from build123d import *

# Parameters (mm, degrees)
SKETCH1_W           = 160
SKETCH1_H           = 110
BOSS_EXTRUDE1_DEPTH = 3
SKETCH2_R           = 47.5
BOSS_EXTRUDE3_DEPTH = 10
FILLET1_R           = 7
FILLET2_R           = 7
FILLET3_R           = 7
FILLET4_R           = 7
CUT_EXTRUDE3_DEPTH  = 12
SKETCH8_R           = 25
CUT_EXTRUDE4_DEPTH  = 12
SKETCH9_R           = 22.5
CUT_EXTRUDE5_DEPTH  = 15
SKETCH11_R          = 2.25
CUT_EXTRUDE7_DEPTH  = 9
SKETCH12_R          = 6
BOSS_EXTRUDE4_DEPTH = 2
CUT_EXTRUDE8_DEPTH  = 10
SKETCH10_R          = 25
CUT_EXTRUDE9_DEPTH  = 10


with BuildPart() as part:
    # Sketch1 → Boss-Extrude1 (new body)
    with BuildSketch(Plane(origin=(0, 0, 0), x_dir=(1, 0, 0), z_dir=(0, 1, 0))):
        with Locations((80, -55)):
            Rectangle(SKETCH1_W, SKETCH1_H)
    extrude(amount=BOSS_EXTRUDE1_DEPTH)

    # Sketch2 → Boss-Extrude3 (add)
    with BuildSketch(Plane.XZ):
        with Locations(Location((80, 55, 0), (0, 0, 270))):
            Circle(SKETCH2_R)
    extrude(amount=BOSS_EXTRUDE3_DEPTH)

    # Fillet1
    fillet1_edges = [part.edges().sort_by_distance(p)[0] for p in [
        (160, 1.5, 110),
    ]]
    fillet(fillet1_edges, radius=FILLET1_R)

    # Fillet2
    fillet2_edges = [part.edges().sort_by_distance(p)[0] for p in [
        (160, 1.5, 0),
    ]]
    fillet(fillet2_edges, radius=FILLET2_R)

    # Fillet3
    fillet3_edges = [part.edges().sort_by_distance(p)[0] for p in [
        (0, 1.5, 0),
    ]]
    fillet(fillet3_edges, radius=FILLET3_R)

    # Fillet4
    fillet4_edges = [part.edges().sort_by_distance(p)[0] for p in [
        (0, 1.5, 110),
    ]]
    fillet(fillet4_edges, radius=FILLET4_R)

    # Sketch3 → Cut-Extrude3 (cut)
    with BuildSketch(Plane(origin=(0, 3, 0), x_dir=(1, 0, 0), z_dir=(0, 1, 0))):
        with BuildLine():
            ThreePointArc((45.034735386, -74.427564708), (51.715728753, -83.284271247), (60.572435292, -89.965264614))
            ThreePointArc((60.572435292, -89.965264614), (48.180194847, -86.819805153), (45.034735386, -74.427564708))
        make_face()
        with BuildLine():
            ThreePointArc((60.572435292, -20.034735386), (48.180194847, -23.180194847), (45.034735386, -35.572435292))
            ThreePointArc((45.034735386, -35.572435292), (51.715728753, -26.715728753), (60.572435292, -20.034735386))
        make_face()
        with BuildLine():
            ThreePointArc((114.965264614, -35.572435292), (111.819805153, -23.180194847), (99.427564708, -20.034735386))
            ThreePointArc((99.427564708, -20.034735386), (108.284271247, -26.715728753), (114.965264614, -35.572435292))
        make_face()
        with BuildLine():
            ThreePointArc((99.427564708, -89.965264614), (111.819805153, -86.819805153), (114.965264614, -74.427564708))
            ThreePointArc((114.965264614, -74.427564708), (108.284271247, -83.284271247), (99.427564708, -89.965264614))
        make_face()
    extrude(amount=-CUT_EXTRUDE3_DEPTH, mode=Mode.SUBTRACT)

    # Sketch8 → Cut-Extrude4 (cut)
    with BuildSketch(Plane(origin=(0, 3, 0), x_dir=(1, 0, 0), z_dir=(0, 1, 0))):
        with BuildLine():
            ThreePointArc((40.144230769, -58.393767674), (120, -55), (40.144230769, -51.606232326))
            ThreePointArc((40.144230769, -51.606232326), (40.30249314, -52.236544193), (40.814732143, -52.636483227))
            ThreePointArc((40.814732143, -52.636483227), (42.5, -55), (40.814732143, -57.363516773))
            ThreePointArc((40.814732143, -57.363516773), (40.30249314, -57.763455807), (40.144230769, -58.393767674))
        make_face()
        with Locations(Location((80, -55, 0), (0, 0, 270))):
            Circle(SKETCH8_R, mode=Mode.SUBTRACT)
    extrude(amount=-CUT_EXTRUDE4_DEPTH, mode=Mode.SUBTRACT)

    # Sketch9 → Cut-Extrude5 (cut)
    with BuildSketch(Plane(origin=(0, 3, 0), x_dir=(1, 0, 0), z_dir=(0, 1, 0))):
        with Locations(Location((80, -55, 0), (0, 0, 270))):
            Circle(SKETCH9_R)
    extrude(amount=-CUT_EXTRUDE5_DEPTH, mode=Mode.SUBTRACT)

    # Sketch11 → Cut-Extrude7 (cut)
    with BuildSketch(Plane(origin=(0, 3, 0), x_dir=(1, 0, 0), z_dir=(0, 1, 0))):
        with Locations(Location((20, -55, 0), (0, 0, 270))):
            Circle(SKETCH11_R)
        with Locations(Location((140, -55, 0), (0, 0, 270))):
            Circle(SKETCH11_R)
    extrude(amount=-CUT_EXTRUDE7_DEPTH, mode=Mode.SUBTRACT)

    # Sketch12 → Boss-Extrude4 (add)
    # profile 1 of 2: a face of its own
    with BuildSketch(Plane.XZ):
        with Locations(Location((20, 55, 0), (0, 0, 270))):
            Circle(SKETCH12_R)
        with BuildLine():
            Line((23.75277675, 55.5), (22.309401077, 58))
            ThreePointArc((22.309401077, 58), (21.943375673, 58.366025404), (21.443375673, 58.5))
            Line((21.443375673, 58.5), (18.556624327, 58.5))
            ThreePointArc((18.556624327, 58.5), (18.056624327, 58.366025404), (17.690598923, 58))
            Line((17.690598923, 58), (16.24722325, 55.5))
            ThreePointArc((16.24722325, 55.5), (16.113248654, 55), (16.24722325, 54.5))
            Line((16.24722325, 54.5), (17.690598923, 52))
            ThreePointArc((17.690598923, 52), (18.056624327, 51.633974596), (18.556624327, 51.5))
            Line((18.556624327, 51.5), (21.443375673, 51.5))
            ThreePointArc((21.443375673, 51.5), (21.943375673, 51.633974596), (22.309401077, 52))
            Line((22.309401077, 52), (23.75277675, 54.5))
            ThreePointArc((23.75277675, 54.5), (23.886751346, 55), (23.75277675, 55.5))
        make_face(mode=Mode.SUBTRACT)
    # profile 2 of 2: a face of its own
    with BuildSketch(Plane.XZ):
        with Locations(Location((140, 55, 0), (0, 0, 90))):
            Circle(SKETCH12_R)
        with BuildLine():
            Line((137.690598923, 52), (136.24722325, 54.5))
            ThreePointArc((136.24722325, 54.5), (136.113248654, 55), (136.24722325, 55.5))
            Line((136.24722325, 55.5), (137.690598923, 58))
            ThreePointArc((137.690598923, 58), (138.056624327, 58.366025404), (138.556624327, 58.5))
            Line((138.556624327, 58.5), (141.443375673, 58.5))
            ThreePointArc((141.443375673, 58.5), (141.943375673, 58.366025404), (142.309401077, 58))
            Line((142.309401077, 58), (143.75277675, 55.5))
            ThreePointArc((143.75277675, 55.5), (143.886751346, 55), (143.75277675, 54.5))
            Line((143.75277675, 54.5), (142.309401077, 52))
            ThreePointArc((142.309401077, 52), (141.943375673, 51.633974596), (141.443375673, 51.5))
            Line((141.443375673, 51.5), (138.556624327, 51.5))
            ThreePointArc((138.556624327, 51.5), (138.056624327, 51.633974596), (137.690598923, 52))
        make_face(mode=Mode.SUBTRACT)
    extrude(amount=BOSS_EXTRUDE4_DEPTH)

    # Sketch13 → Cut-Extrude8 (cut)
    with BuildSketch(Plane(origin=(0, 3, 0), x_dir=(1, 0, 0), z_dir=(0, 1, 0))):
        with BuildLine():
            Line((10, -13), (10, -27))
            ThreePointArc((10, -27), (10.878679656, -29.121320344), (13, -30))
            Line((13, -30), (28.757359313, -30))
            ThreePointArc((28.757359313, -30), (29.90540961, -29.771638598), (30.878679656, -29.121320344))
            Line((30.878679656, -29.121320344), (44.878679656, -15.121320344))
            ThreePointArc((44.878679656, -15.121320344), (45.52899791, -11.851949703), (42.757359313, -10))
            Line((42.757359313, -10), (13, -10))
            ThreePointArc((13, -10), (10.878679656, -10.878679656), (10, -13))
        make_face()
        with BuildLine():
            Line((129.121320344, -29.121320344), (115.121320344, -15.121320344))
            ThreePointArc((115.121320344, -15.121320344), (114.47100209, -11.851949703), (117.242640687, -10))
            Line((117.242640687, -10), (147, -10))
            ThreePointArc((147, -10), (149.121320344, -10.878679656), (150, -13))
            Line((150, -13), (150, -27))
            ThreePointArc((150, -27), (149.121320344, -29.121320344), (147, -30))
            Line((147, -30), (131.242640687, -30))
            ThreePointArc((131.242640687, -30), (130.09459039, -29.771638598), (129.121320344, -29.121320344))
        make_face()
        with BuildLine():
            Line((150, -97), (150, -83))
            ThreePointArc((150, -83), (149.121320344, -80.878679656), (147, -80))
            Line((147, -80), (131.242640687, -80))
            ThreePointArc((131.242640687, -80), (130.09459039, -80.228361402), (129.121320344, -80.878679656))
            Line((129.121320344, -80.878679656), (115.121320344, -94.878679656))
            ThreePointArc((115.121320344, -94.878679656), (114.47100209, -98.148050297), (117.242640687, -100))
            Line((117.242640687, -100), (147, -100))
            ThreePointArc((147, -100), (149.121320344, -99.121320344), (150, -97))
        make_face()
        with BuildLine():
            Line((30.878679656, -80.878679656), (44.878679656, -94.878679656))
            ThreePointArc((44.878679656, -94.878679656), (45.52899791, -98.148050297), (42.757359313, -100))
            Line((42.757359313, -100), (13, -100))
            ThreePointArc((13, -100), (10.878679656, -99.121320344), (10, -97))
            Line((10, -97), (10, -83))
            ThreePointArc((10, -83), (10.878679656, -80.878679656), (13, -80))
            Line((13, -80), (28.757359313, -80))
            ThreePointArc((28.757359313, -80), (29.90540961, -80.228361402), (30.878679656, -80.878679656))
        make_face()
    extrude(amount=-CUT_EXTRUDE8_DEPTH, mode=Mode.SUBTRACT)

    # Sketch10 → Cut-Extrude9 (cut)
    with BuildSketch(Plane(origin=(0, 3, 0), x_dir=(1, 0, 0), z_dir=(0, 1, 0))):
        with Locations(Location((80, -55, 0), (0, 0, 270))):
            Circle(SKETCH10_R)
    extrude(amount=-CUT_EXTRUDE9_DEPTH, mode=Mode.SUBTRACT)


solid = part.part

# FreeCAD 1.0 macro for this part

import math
import FreeCAD as App
import Part
import Sketcher

V = App.Vector
Q = App.Units.Quantity


def edges_at(feature, points):
    """Names of the edges that pass closest to the given points."""
    edges = feature.Shape.Edges
    near = lambda p: min(range(len(edges)), key=lambda i: edges[i].distToShape(Part.Vertex(*p))[0])
    return sorted({f"Edge{near(p) + 1}" for p in points})


def add_polygon(sketch, points):
    """Adds a closed chain of lines whose ends are joined by coincident constraints."""
    first, n = sketch.GeometryCount, len(points)
    for a, b in zip(points, points[1:] + points[:1]):
        sketch.addGeometry(Part.LineSegment(App.Vector(*a, 0), App.Vector(*b, 0)), False)
    for i in range(n):
        sketch.addConstraint(Sketcher.Constraint("Coincident", first + i, 2, first + (i + 1) % n, 1))

doc = App.newDocument("Part")
params = doc.addObject("Spreadsheet::Sheet", "Params")
for row, (alias, value) in enumerate([
    ("sketch1_width", "160 mm"),
    ("sketch1_height", "110 mm"),
    ("pad1_length", "3 mm"),
    ("sketch2_diameter", "95 mm"),
    ("pad2_length", "10 mm"),
    ("fillet_radius", "7 mm"),
    ("fillet2_radius", "7 mm"),
    ("fillet3_radius", "7 mm"),
    ("fillet4_radius", "7 mm"),
    ("sketch3_radius", "40 mm"),
    ("sketch3_radius2", "12.5 mm"),
    ("pocket1_length", "12 mm"),
    ("sketch4_diameter", "50 mm"),
    ("sketch4_radius", "40 mm"),
    ("sketch4_radius2", "1 mm"),
    ("sketch4_radius3", "2.5 mm"),
    ("pocket2_length", "12 mm"),
    ("sketch5_diameter", "45 mm"),
    ("pocket3_length", "15 mm"),
    ("sketch6_diameter", "4.5 mm"),
    ("pocket4_length", "9 mm"),
    ("sketch7_diameter", "12 mm"),
    ("sketch7_radius", "1 mm"),
    ("pad3_length", "2 mm"),
    ("sketch8_radius", "3 mm"),
    ("sketch8_height", "14 mm"),
    ("pocket5_length", "10 mm"),
    ("sketch9_diameter", "50 mm"),
    ("pocket6_length", "10 mm"),
], start=1):
    params.set(f"A{row}", alias)
    params.set(f"B{row}", "=" + value)
    params.setAlias(f"B{row}", alias)

body = doc.addObject("PartDesign::Body", "Body")

# Sketch on XZ plane
sketch1 = body.newObject("Sketcher::SketchObject", "Sketch")
sketch1.AttachmentSupport = (doc.getObject("XZ_Plane"), [""])
sketch1.MapMode = "FlatFace"
add_polygon(sketch1, [(0, 0), (0, 110), (160, 110), (160, 0)])  # lines 0-3
sketch1.addConstraint(Sketcher.Constraint("Vertical", 0))
sketch1.addConstraint(Sketcher.Constraint("Horizontal", 1))
sketch1.addConstraint(Sketcher.Constraint("Vertical", 2))
sketch1.addConstraint(Sketcher.Constraint("Horizontal", 3))
sketch1.addConstraint(Sketcher.Constraint("Coincident", 3, 2, -1, 1))
sketch1.addConstraint(Sketcher.Constraint("DistanceX", 1, 1, 1, 2, Q("160 mm")))
sketch1.addConstraint(Sketcher.Constraint("DistanceY", 0, 1, 0, 2, Q("110 mm")))
sketch1.setExpression("Constraints[9]", "Params.sketch1_width")
sketch1.setExpression("Constraints[10]", "Params.sketch1_height")
pad1 = body.newObject("PartDesign::Pad", "Pad")
pad1.Profile = sketch1
pad1.setExpression("Length", "Params.pad1_length")
pad1.Reversed = True

# Sketch on XZ plane
sketch2 = body.newObject("Sketcher::SketchObject", "Sketch001")
sketch2.AttachmentSupport = (doc.getObject("XZ_Plane"), [""])
sketch2.MapMode = "FlatFace"
sketch2.addGeometry(Part.Circle(V(80, 55, 0), V(0, 0, 1), 47.5), False)
sketch2.addConstraint(Sketcher.Constraint("Diameter", 0, Q("95 mm")))
sketch2.addConstraint(Sketcher.Constraint("DistanceX", -1, 1, 0, 3, Q("80 mm")))
sketch2.addConstraint(Sketcher.Constraint("DistanceY", -1, 1, 0, 3, Q("55 mm")))
sketch2.setExpression("Constraints[0]", "Params.sketch2_diameter")
pad2 = body.newObject("PartDesign::Pad", "Pad001")
pad2.Profile = sketch2
pad2.setExpression("Length", "Params.pad2_length")
doc.recompute()

fillet = body.newObject("PartDesign::Fillet", "Fillet")
fillet.Base = (pad2, edges_at(pad2, [(160, 1.5, 110)]))
fillet.setExpression("Radius", "Params.fillet_radius")
doc.recompute()

fillet2 = body.newObject("PartDesign::Fillet", "Fillet001")
fillet2.Base = (fillet, edges_at(fillet, [(160, 1.5, 0)]))
fillet2.setExpression("Radius", "Params.fillet2_radius")
doc.recompute()

fillet3 = body.newObject("PartDesign::Fillet", "Fillet002")
fillet3.Base = (fillet2, edges_at(fillet2, [(0, 1.5, 0)]))
fillet3.setExpression("Radius", "Params.fillet3_radius")
doc.recompute()

fillet4 = body.newObject("PartDesign::Fillet", "Fillet003")
fillet4.Base = (fillet3, edges_at(fillet3, [(0, 1.5, 110)]))
fillet4.setExpression("Radius", "Params.fillet4_radius")

# Sketch on XZ plane
sketch3 = body.newObject("Sketcher::SketchObject", "Sketch002")
sketch3.AttachmentSupport = (doc.getObject("XZ_Plane"), [""])
sketch3.MapMode = "FlatFace"
sketch3.AttachmentOffset = App.Placement(V(0, 0, -3), App.Rotation())
sketch3.addGeometry(Part.ArcOfCircle(Part.Circle(V(80, 55, 0), V(0, 0, 1), 40), math.radians(119.057631), math.radians(150.942369)), False)
sketch3.addGeometry(Part.ArcOfCircle(Part.Circle(V(57.01903, 77.98097, 0), V(0, 0, 1), 12.5), math.radians(73.484635), math.radians(196.515365)), False)
sketch3.addGeometry(Part.ArcOfCircle(Part.Circle(V(57.01903, 32.01903, 0), V(0, 0, 1), 12.5), math.radians(163.484635), math.radians(286.515365)), False)
sketch3.addGeometry(Part.ArcOfCircle(Part.Circle(V(80, 55, 0), V(0, 0, 1), 40), math.radians(-150.942369), math.radians(-119.057631)), False)
sketch3.addGeometry(Part.ArcOfCircle(Part.Circle(V(102.98097, 32.01903, 0), V(0, 0, 1), 12.5), math.radians(-106.515365), math.radians(16.515365)), False)
sketch3.addGeometry(Part.ArcOfCircle(Part.Circle(V(80, 55, 0), V(0, 0, 1), 40), math.radians(-60.942369), math.radians(-29.057631)), False)
sketch3.addGeometry(Part.ArcOfCircle(Part.Circle(V(102.98097, 77.98097, 0), V(0, 0, 1), 12.5), math.radians(-16.515365), math.radians(106.515365)), False)
sketch3.addGeometry(Part.ArcOfCircle(Part.Circle(V(80, 55, 0), V(0, 0, 1), 40), math.radians(29.057631), math.radians(60.942369)), False)
sketch3.addConstraint(Sketcher.Constraint("Coincident", 0, 1, 1, 1))
sketch3.addConstraint(Sketcher.Constraint("Coincident", 1, 2, 0, 2))
sketch3.addConstraint(Sketcher.Constraint("Coincident", 2, 1, 3, 1))
sketch3.addConstraint(Sketcher.Constraint("Coincident", 3, 2, 2, 2))
sketch3.addConstraint(Sketcher.Constraint("Coincident", 4, 1, 5, 1))
sketch3.addConstraint(Sketcher.Constraint("Coincident", 5, 2, 4, 2))
sketch3.addConstraint(Sketcher.Constraint("Coincident", 6, 1, 7, 1))
sketch3.addConstraint(Sketcher.Constraint("Coincident", 7, 2, 6, 2))
sketch3.addConstraint(Sketcher.Constraint("Coincident", 3, 3, 0, 3))
sketch3.addConstraint(Sketcher.Constraint("Coincident", 5, 3, 0, 3))
sketch3.addConstraint(Sketcher.Constraint("Coincident", 7, 3, 0, 3))
sketch3.addConstraint(Sketcher.Constraint("Equal", 1, 2))
sketch3.addConstraint(Sketcher.Constraint("Equal", 0, 3))
sketch3.addConstraint(Sketcher.Constraint("Equal", 2, 4))
sketch3.addConstraint(Sketcher.Constraint("Equal", 3, 5))
sketch3.addConstraint(Sketcher.Constraint("Equal", 4, 6))
sketch3.addConstraint(Sketcher.Constraint("Equal", 5, 7))
sketch3.addConstraint(Sketcher.Constraint("Horizontal", 2, 3, 4, 3))
sketch3.addConstraint(Sketcher.Constraint("Horizontal", 1, 3, 6, 3))
sketch3.addConstraint(Sketcher.Constraint("Horizontal", 3, 2, 4, 1))
sketch3.addConstraint(Sketcher.Constraint("Horizontal", 1, 2, 6, 1))
sketch3.addConstraint(Sketcher.Constraint("Vertical", 1, 3, 2, 3))
sketch3.addConstraint(Sketcher.Constraint("Vertical", 1, 2, 2, 1))
sketch3.addConstraint(Sketcher.Constraint("Radius", 0, Q("40 mm")))
sketch3.addConstraint(Sketcher.Constraint("Radius", 1, Q("12.5 mm")))
sketch3.addConstraint(Sketcher.Constraint("DistanceX", -1, 1, 0, 3, Q("80 mm")))
sketch3.addConstraint(Sketcher.Constraint("DistanceY", -1, 1, 0, 3, Q("55 mm")))
sketch3.addConstraint(Sketcher.Constraint("DistanceX", 1, 2, 0, 1, Q("15.5377 mm")))
sketch3.addConstraint(Sketcher.Constraint("DistanceY", 1, 2, 0, 1, Q("15.5377 mm")))
sketch3.setExpression("Constraints[23]", "Params.sketch3_radius")
sketch3.setExpression("Constraints[24]", "Params.sketch3_radius2")
pocket1 = body.newObject("PartDesign::Pocket", "Pocket")
pocket1.Profile = sketch3
pocket1.setExpression("Length", "Params.pocket1_length")
pocket1.Reversed = True

# Sketch on XZ plane
sketch4 = body.newObject("Sketcher::SketchObject", "Sketch003")
sketch4.AttachmentSupport = (doc.getObject("XZ_Plane"), [""])
sketch4.MapMode = "FlatFace"
sketch4.AttachmentOffset = App.Placement(V(0, 0, -3), App.Rotation())
sketch4.addGeometry(Part.ArcOfCircle(Part.Circle(V(80, 55, 0), V(0, 0, 1), 40), math.radians(-175.132935), math.radians(175.132935)), False)
sketch4.addGeometry(Part.ArcOfCircle(Part.Circle(V(41.140625, 51.691077, 0), V(0, 0, 1), 1), math.radians(109.019677), math.radians(184.867065)), False)
sketch4.addGeometry(Part.ArcOfCircle(Part.Circle(V(40, 55, 0), V(0, 0, 1), 2.5), math.radians(-70.980323), math.radians(70.980323)), False)
sketch4.addGeometry(Part.ArcOfCircle(Part.Circle(V(41.140625, 58.308923, 0), V(0, 0, 1), 1), math.radians(175.132935), math.radians(250.980323)), False)
sketch4.addGeometry(Part.Circle(V(80, 55, 0), V(0, 0, 1), 25), False)
sketch4.addConstraint(Sketcher.Constraint("Tangent", 0, 1, 1, 2))
sketch4.addConstraint(Sketcher.Constraint("Tangent", 1, 1, 2, 1))
sketch4.addConstraint(Sketcher.Constraint("Tangent", 2, 2, 3, 2))
sketch4.addConstraint(Sketcher.Constraint("Tangent", 3, 1, 0, 2))
sketch4.addConstraint(Sketcher.Constraint("Coincident", 4, 3, 0, 3))
sketch4.addConstraint(Sketcher.Constraint("Equal", 1, 3))
sketch4.addConstraint(Sketcher.Constraint("Horizontal", 0, 3, 2, 3))
sketch4.addConstraint(Sketcher.Constraint("Diameter", 4, Q("50 mm")))
sketch4.addConstraint(Sketcher.Constraint("Radius", 0, Q("40 mm")))
sketch4.addConstraint(Sketcher.Constraint("Radius", 1, Q("1 mm")))
sketch4.addConstraint(Sketcher.Constraint("Radius", 2, Q("2.5 mm")))
sketch4.addConstraint(Sketcher.Constraint("DistanceX", -1, 1, 0, 3, Q("80 mm")))
sketch4.addConstraint(Sketcher.Constraint("DistanceY", -1, 1, 0, 3, Q("55 mm")))
sketch4.addConstraint(Sketcher.Constraint("DistanceX", -1, 1, 2, 3, Q("40 mm")))
sketch4.setExpression("Constraints[7]", "Params.sketch4_diameter")
sketch4.setExpression("Constraints[8]", "Params.sketch4_radius")
sketch4.setExpression("Constraints[9]", "Params.sketch4_radius2")
sketch4.setExpression("Constraints[10]", "Params.sketch4_radius3")
pocket2 = body.newObject("PartDesign::Pocket", "Pocket001")
pocket2.Profile = sketch4
pocket2.setExpression("Length", "Params.pocket2_length")
pocket2.Reversed = True

# Sketch on XZ plane
sketch5 = body.newObject("Sketcher::SketchObject", "Sketch004")
sketch5.AttachmentSupport = (doc.getObject("XZ_Plane"), [""])
sketch5.MapMode = "FlatFace"
sketch5.AttachmentOffset = App.Placement(V(0, 0, -3), App.Rotation())
sketch5.addGeometry(Part.Circle(V(80, 55, 0), V(0, 0, 1), 22.5), False)
sketch5.addConstraint(Sketcher.Constraint("Diameter", 0, Q("45 mm")))
sketch5.addConstraint(Sketcher.Constraint("DistanceX", -1, 1, 0, 3, Q("80 mm")))
sketch5.addConstraint(Sketcher.Constraint("DistanceY", -1, 1, 0, 3, Q("55 mm")))
sketch5.setExpression("Constraints[0]", "Params.sketch5_diameter")
pocket3 = body.newObject("PartDesign::Pocket", "Pocket002")
pocket3.Profile = sketch5
pocket3.setExpression("Length", "Params.pocket3_length")
pocket3.Reversed = True

# Sketch on XZ plane
sketch6 = body.newObject("Sketcher::SketchObject", "Sketch005")
sketch6.AttachmentSupport = (doc.getObject("XZ_Plane"), [""])
sketch6.MapMode = "FlatFace"
sketch6.AttachmentOffset = App.Placement(V(0, 0, -3), App.Rotation())
sketch6.addGeometry(Part.Circle(V(20, 55, 0), V(0, 0, 1), 2.25), False)
sketch6.addGeometry(Part.Circle(V(140, 55, 0), V(0, 0, 1), 2.25), False)
sketch6.addConstraint(Sketcher.Constraint("Equal", 0, 1))
sketch6.addConstraint(Sketcher.Constraint("Horizontal", 0, 3, 1, 3))
sketch6.addConstraint(Sketcher.Constraint("Diameter", 0, Q("4.5 mm")))
sketch6.addConstraint(Sketcher.Constraint("DistanceX", -1, 1, 0, 3, Q("20 mm")))
sketch6.addConstraint(Sketcher.Constraint("DistanceY", -1, 1, 0, 3, Q("55 mm")))
sketch6.addConstraint(Sketcher.Constraint("DistanceX", -1, 1, 1, 3, Q("140 mm")))
sketch6.setExpression("Constraints[2]", "Params.sketch6_diameter")
pocket4 = body.newObject("PartDesign::Pocket", "Pocket003")
pocket4.Profile = sketch6
pocket4.setExpression("Length", "Params.pocket4_length")
pocket4.Reversed = True

# Sketch on XZ plane
sketch7 = body.newObject("Sketcher::SketchObject", "Sketch006")
sketch7.AttachmentSupport = (doc.getObject("XZ_Plane"), [""])
sketch7.MapMode = "FlatFace"
sketch7.addGeometry(Part.Circle(V(20, 55, 0), V(0, 0, 1), 6), False)
sketch7.addGeometry(Part.LineSegment(V(22.309401, 58, 0), V(23.752777, 55.5, 0)), False)
sketch7.addGeometry(Part.ArcOfCircle(Part.Circle(V(22.886751, 55, 0), V(0, 0, 1), 1), math.radians(-30), math.radians(30)), False)
sketch7.addGeometry(Part.LineSegment(V(23.752777, 54.5, 0), V(22.309401, 52, 0)), False)
sketch7.addGeometry(Part.ArcOfCircle(Part.Circle(V(21.443376, 52.5, 0), V(0, 0, 1), 1), math.radians(-90), math.radians(-30)), False)
sketch7.addGeometry(Part.LineSegment(V(21.443376, 51.5, 0), V(18.556624, 51.5, 0)), False)
sketch7.addGeometry(Part.ArcOfCircle(Part.Circle(V(18.556624, 52.5, 0), V(0, 0, 1), 1), math.radians(-150), math.radians(-90)), False)
sketch7.addGeometry(Part.LineSegment(V(17.690599, 52, 0), V(16.247223, 54.5, 0)), False)
sketch7.addGeometry(Part.ArcOfCircle(Part.Circle(V(17.113249, 55, 0), V(0, 0, 1), 1), math.radians(150), math.radians(210)), False)
sketch7.addGeometry(Part.LineSegment(V(16.247223, 55.5, 0), V(17.690599, 58, 0)), False)
sketch7.addGeometry(Part.ArcOfCircle(Part.Circle(V(18.556624, 57.5, 0), V(0, 0, 1), 1), math.radians(90), math.radians(150)), False)
sketch7.addGeometry(Part.LineSegment(V(18.556624, 58.5, 0), V(21.443376, 58.5, 0)), False)
sketch7.addGeometry(Part.ArcOfCircle(Part.Circle(V(21.443376, 57.5, 0), V(0, 0, 1), 1), math.radians(30), math.radians(90)), False)
sketch7.addGeometry(Part.Circle(V(140, 55, 0), V(0, 0, 1), 6), False)
sketch7.addGeometry(Part.ArcOfCircle(Part.Circle(V(138.556624, 52.5, 0), V(0, 0, 1), 1), math.radians(-150), math.radians(-90)), False)
sketch7.addGeometry(Part.LineSegment(V(137.690599, 52, 0), V(136.247223, 54.5, 0)), False)
sketch7.addGeometry(Part.ArcOfCircle(Part.Circle(V(137.113249, 55, 0), V(0, 0, 1), 1), math.radians(150), math.radians(210)), False)
sketch7.addGeometry(Part.LineSegment(V(136.247223, 55.5, 0), V(137.690599, 58, 0)), False)
sketch7.addGeometry(Part.ArcOfCircle(Part.Circle(V(138.556624, 57.5, 0), V(0, 0, 1), 1), math.radians(90), math.radians(150)), False)
sketch7.addGeometry(Part.LineSegment(V(138.556624, 58.5, 0), V(141.443376, 58.5, 0)), False)
sketch7.addGeometry(Part.ArcOfCircle(Part.Circle(V(141.443376, 57.5, 0), V(0, 0, 1), 1), math.radians(30), math.radians(90)), False)
sketch7.addGeometry(Part.LineSegment(V(142.309401, 58, 0), V(143.752777, 55.5, 0)), False)
sketch7.addGeometry(Part.ArcOfCircle(Part.Circle(V(142.886751, 55, 0), V(0, 0, 1), 1), math.radians(-30), math.radians(30)), False)
sketch7.addGeometry(Part.LineSegment(V(143.752777, 54.5, 0), V(142.309401, 52, 0)), False)
sketch7.addGeometry(Part.ArcOfCircle(Part.Circle(V(141.443376, 52.5, 0), V(0, 0, 1), 1), math.radians(-90), math.radians(-30)), False)
sketch7.addGeometry(Part.LineSegment(V(141.443376, 51.5, 0), V(138.556624, 51.5, 0)), False)
sketch7.addConstraint(Sketcher.Constraint("Tangent", 1, 2, 2, 2))
sketch7.addConstraint(Sketcher.Constraint("Tangent", 2, 1, 3, 1))
sketch7.addConstraint(Sketcher.Constraint("Tangent", 3, 2, 4, 2))
sketch7.addConstraint(Sketcher.Constraint("Tangent", 4, 1, 5, 1))
sketch7.addConstraint(Sketcher.Constraint("Tangent", 5, 2, 6, 2))
sketch7.addConstraint(Sketcher.Constraint("Tangent", 6, 1, 7, 1))
sketch7.addConstraint(Sketcher.Constraint("Tangent", 7, 2, 8, 2))
sketch7.addConstraint(Sketcher.Constraint("Tangent", 8, 1, 9, 1))
sketch7.addConstraint(Sketcher.Constraint("Tangent", 9, 2, 10, 2))
sketch7.addConstraint(Sketcher.Constraint("Tangent", 10, 1, 11, 1))
sketch7.addConstraint(Sketcher.Constraint("Tangent", 11, 2, 12, 2))
sketch7.addConstraint(Sketcher.Constraint("Tangent", 12, 1, 1, 1))
sketch7.addConstraint(Sketcher.Constraint("Tangent", 14, 1, 15, 1))
sketch7.addConstraint(Sketcher.Constraint("Tangent", 15, 2, 16, 2))
sketch7.addConstraint(Sketcher.Constraint("Tangent", 16, 1, 17, 1))
sketch7.addConstraint(Sketcher.Constraint("Tangent", 17, 2, 18, 2))
sketch7.addConstraint(Sketcher.Constraint("Tangent", 18, 1, 19, 1))
sketch7.addConstraint(Sketcher.Constraint("Tangent", 19, 2, 20, 2))
sketch7.addConstraint(Sketcher.Constraint("Tangent", 20, 1, 21, 1))
sketch7.addConstraint(Sketcher.Constraint("Tangent", 21, 2, 22, 2))
sketch7.addConstraint(Sketcher.Constraint("Tangent", 22, 1, 23, 1))
sketch7.addConstraint(Sketcher.Constraint("Tangent", 23, 2, 24, 2))
sketch7.addConstraint(Sketcher.Constraint("Tangent", 24, 1, 25, 1))
sketch7.addConstraint(Sketcher.Constraint("Tangent", 25, 2, 14, 2))
sketch7.addConstraint(Sketcher.Constraint("Horizontal", 5))
sketch7.addConstraint(Sketcher.Constraint("Horizontal", 11))
sketch7.addConstraint(Sketcher.Constraint("Horizontal", 19))
sketch7.addConstraint(Sketcher.Constraint("Horizontal", 25))
sketch7.addConstraint(Sketcher.Constraint("Equal", 2, 4))
sketch7.addConstraint(Sketcher.Constraint("Equal", 4, 6))
sketch7.addConstraint(Sketcher.Constraint("Equal", 6, 8))
sketch7.addConstraint(Sketcher.Constraint("Equal", 8, 10))
sketch7.addConstraint(Sketcher.Constraint("Equal", 10, 12))
sketch7.addConstraint(Sketcher.Constraint("Equal", 0, 13))
sketch7.addConstraint(Sketcher.Constraint("Equal", 12, 14))
sketch7.addConstraint(Sketcher.Constraint("Equal", 14, 16))
sketch7.addConstraint(Sketcher.Constraint("Equal", 16, 18))
sketch7.addConstraint(Sketcher.Constraint("Equal", 18, 20))
sketch7.addConstraint(Sketcher.Constraint("Equal", 20, 22))
sketch7.addConstraint(Sketcher.Constraint("Equal", 22, 24))
sketch7.addConstraint(Sketcher.Constraint("Parallel", 1, 7))
sketch7.addConstraint(Sketcher.Constraint("Parallel", 3, 9))
sketch7.addConstraint(Sketcher.Constraint("Parallel", 7, 15))
sketch7.addConstraint(Sketcher.Constraint("Parallel", 9, 17))
sketch7.addConstraint(Sketcher.Constraint("Parallel", 15, 21))
sketch7.addConstraint(Sketcher.Constraint("Parallel", 17, 23))
sketch7.addConstraint(Sketcher.Constraint("Horizontal", 0, 3, 2, 3))
sketch7.addConstraint(Sketcher.Constraint("Horizontal", 2, 3, 8, 3))
sketch7.addConstraint(Sketcher.Constraint("Horizontal", 8, 3, 13, 3))
sketch7.addConstraint(Sketcher.Constraint("Horizontal", 6, 3, 14, 3))
sketch7.addConstraint(Sketcher.Constraint("Horizontal", 13, 3, 16, 3))
sketch7.addConstraint(Sketcher.Constraint("Horizontal", 12, 3, 18, 3))
sketch7.addConstraint(Sketcher.Constraint("Horizontal", 16, 3, 22, 3))
sketch7.addConstraint(Sketcher.Constraint("Horizontal", 3, 2, 6, 1))
sketch7.addConstraint(Sketcher.Constraint("Vertical", 6, 3, 10, 3))
sketch7.addConstraint(Sketcher.Constraint("Equal", 11, 19))
sketch7.addConstraint(Sketcher.Constraint("Diameter", 0, Q("12 mm")))
sketch7.addConstraint(Sketcher.Constraint("Radius", 2, Q("1 mm")))
sketch7.addConstraint(Sketcher.Constraint("Angle", 1, Q("-60 deg")))
sketch7.addConstraint(Sketcher.Constraint("DistanceX", -1, 1, 0, 3, Q("20 mm")))
sketch7.addConstraint(Sketcher.Constraint("DistanceY", -1, 1, 0, 3, Q("55 mm")))
sketch7.addConstraint(Sketcher.Constraint("DistanceX", -1, 1, 13, 3, Q("140 mm")))
sketch7.addConstraint(Sketcher.Constraint("DistanceY", -1, 1, 3, 2, Q("52 mm")))
sketch7.addConstraint(Sketcher.Constraint("DistanceX", 5, 2, 5, 1, Q("2.886751 mm")))
sketch7.addConstraint(Sketcher.Constraint("DistanceX", -1, 1, 3, 2, Q("22.309401 mm")))
sketch7.addConstraint(Sketcher.Constraint("DistanceX", -1, 1, 14, 1, Q("137.690599 mm")))
sketch7.setExpression("Constraints[56]", "Params.sketch7_diameter")
sketch7.setExpression("Constraints[57]", "Params.sketch7_radius")
pad3 = body.newObject("PartDesign::Pad", "Pad002")
pad3.Profile = sketch7
pad3.setExpression("Length", "Params.pad3_length")

# Sketch on XZ plane
sketch8 = body.newObject("Sketcher::SketchObject", "Sketch007")
sketch8.AttachmentSupport = (doc.getObject("XZ_Plane"), [""])
sketch8.MapMode = "FlatFace"
sketch8.AttachmentOffset = App.Placement(V(0, 0, -3), App.Rotation())
sketch8.addGeometry(Part.LineSegment(V(10, 13, 0), V(10, 27, 0)), False)
sketch8.addGeometry(Part.ArcOfCircle(Part.Circle(V(13, 27, 0), V(0, 0, 1), 3), math.radians(90), math.radians(180)), False)
sketch8.addGeometry(Part.LineSegment(V(13, 30, 0), V(28.757359, 30, 0)), False)
sketch8.addGeometry(Part.ArcOfCircle(Part.Circle(V(28.757359, 27, 0), V(0, 0, 1), 3), math.radians(45), math.radians(90)), False)
sketch8.addGeometry(Part.LineSegment(V(30.87868, 29.12132, 0), V(44.87868, 15.12132, 0)), False)
sketch8.addGeometry(Part.ArcOfCircle(Part.Circle(V(42.757359, 13, 0), V(0, 0, 1), 3), math.radians(-90), math.radians(45)), False)
sketch8.addGeometry(Part.LineSegment(V(42.757359, 10, 0), V(13, 10, 0)), False)
sketch8.addGeometry(Part.ArcOfCircle(Part.Circle(V(13, 13, 0), V(0, 0, 1), 3), math.radians(180), math.radians(270)), False)
sketch8.addGeometry(Part.LineSegment(V(115.12132, 15.12132, 0), V(129.12132, 29.12132, 0)), False)
sketch8.addGeometry(Part.ArcOfCircle(Part.Circle(V(131.242641, 27, 0), V(0, 0, 1), 3), math.radians(90), math.radians(135)), False)
sketch8.addGeometry(Part.LineSegment(V(131.242641, 30, 0), V(147, 30, 0)), False)
sketch8.addGeometry(Part.ArcOfCircle(Part.Circle(V(147, 27, 0), V(0, 0, 1), 3), math.radians(0), math.radians(90)), False)
sketch8.addGeometry(Part.LineSegment(V(150, 27, 0), V(150, 13, 0)), False)
sketch8.addGeometry(Part.ArcOfCircle(Part.Circle(V(147, 13, 0), V(0, 0, 1), 3), math.radians(-90), math.radians(0)), False)
sketch8.addGeometry(Part.LineSegment(V(147, 10, 0), V(117.242641, 10, 0)), False)
sketch8.addGeometry(Part.ArcOfCircle(Part.Circle(V(117.242641, 13, 0), V(0, 0, 1), 3), math.radians(135), math.radians(270)), False)
sketch8.addGeometry(Part.LineSegment(V(150, 97, 0), V(150, 83, 0)), False)
sketch8.addGeometry(Part.ArcOfCircle(Part.Circle(V(147, 83, 0), V(0, 0, 1), 3), math.radians(-90), math.radians(0)), False)
sketch8.addGeometry(Part.LineSegment(V(147, 80, 0), V(131.242641, 80, 0)), False)
sketch8.addGeometry(Part.ArcOfCircle(Part.Circle(V(131.242641, 83, 0), V(0, 0, 1), 3), math.radians(-135), math.radians(-90)), False)
sketch8.addGeometry(Part.LineSegment(V(129.12132, 80.87868, 0), V(115.12132, 94.87868, 0)), False)
sketch8.addGeometry(Part.ArcOfCircle(Part.Circle(V(117.242641, 97, 0), V(0, 0, 1), 3), math.radians(90), math.radians(225)), False)
sketch8.addGeometry(Part.LineSegment(V(117.242641, 100, 0), V(147, 100, 0)), False)
sketch8.addGeometry(Part.ArcOfCircle(Part.Circle(V(147, 97, 0), V(0, 0, 1), 3), math.radians(0), math.radians(90)), False)
sketch8.addGeometry(Part.LineSegment(V(44.87868, 94.87868, 0), V(30.87868, 80.87868, 0)), False)
sketch8.addGeometry(Part.ArcOfCircle(Part.Circle(V(28.757359, 83, 0), V(0, 0, 1), 3), math.radians(-90), math.radians(-45)), False)
sketch8.addGeometry(Part.LineSegment(V(28.757359, 80, 0), V(13, 80, 0)), False)
sketch8.addGeometry(Part.ArcOfCircle(Part.Circle(V(13, 83, 0), V(0, 0, 1), 3), math.radians(180), math.radians(270)), False)
sketch8.addGeometry(Part.LineSegment(V(10, 83, 0), V(10, 97, 0)), False)
sketch8.addGeometry(Part.ArcOfCircle(Part.Circle(V(13, 97, 0), V(0, 0, 1), 3), math.radians(90), math.radians(180)), False)
sketch8.addGeometry(Part.LineSegment(V(13, 100, 0), V(42.757359, 100, 0)), False)
sketch8.addGeometry(Part.ArcOfCircle(Part.Circle(V(42.757359, 97, 0), V(0, 0, 1), 3), math.radians(-45), math.radians(90)), False)
sketch8.addConstraint(Sketcher.Constraint("Tangent", 0, 2, 1, 2))
sketch8.addConstraint(Sketcher.Constraint("Tangent", 1, 1, 2, 1))
sketch8.addConstraint(Sketcher.Constraint("Tangent", 2, 2, 3, 2))
sketch8.addConstraint(Sketcher.Constraint("Tangent", 3, 1, 4, 1))
sketch8.addConstraint(Sketcher.Constraint("Tangent", 4, 2, 5, 2))
sketch8.addConstraint(Sketcher.Constraint("Tangent", 5, 1, 6, 1))
sketch8.addConstraint(Sketcher.Constraint("Tangent", 6, 2, 7, 2))
sketch8.addConstraint(Sketcher.Constraint("Tangent", 7, 1, 0, 1))
sketch8.addConstraint(Sketcher.Constraint("Tangent", 8, 2, 9, 2))
sketch8.addConstraint(Sketcher.Constraint("Tangent", 9, 1, 10, 1))
sketch8.addConstraint(Sketcher.Constraint("Tangent", 10, 2, 11, 2))
sketch8.addConstraint(Sketcher.Constraint("Tangent", 11, 1, 12, 1))
sketch8.addConstraint(Sketcher.Constraint("Tangent", 12, 2, 13, 2))
sketch8.addConstraint(Sketcher.Constraint("Tangent", 13, 1, 14, 1))
sketch8.addConstraint(Sketcher.Constraint("Tangent", 14, 2, 15, 2))
sketch8.addConstraint(Sketcher.Constraint("Tangent", 15, 1, 8, 1))
sketch8.addConstraint(Sketcher.Constraint("Tangent", 16, 2, 17, 2))
sketch8.addConstraint(Sketcher.Constraint("Tangent", 17, 1, 18, 1))
sketch8.addConstraint(Sketcher.Constraint("Tangent", 18, 2, 19, 2))
sketch8.addConstraint(Sketcher.Constraint("Tangent", 19, 1, 20, 1))
sketch8.addConstraint(Sketcher.Constraint("Tangent", 20, 2, 21, 2))
sketch8.addConstraint(Sketcher.Constraint("Tangent", 21, 1, 22, 1))
sketch8.addConstraint(Sketcher.Constraint("Tangent", 22, 2, 23, 2))
sketch8.addConstraint(Sketcher.Constraint("Tangent", 23, 1, 16, 1))
sketch8.addConstraint(Sketcher.Constraint("Tangent", 24, 2, 25, 2))
sketch8.addConstraint(Sketcher.Constraint("Tangent", 25, 1, 26, 1))
sketch8.addConstraint(Sketcher.Constraint("Tangent", 26, 2, 27, 2))
sketch8.addConstraint(Sketcher.Constraint("Tangent", 27, 1, 28, 1))
sketch8.addConstraint(Sketcher.Constraint("Tangent", 28, 2, 29, 2))
sketch8.addConstraint(Sketcher.Constraint("Tangent", 29, 1, 30, 1))
sketch8.addConstraint(Sketcher.Constraint("Tangent", 30, 2, 31, 2))
sketch8.addConstraint(Sketcher.Constraint("Tangent", 31, 1, 24, 1))
sketch8.addConstraint(Sketcher.Constraint("Vertical", 0))
sketch8.addConstraint(Sketcher.Constraint("Horizontal", 2))
sketch8.addConstraint(Sketcher.Constraint("Horizontal", 6))
sketch8.addConstraint(Sketcher.Constraint("Horizontal", 10))
sketch8.addConstraint(Sketcher.Constraint("Vertical", 12))
sketch8.addConstraint(Sketcher.Constraint("Horizontal", 14))
sketch8.addConstraint(Sketcher.Constraint("Vertical", 16))
sketch8.addConstraint(Sketcher.Constraint("Horizontal", 18))
sketch8.addConstraint(Sketcher.Constraint("Horizontal", 22))
sketch8.addConstraint(Sketcher.Constraint("Horizontal", 26))
sketch8.addConstraint(Sketcher.Constraint("Vertical", 28))
sketch8.addConstraint(Sketcher.Constraint("Horizontal", 30))
sketch8.addConstraint(Sketcher.Constraint("Equal", 1, 3))
sketch8.addConstraint(Sketcher.Constraint("Equal", 3, 5))
sketch8.addConstraint(Sketcher.Constraint("Equal", 5, 7))
sketch8.addConstraint(Sketcher.Constraint("Equal", 7, 9))
sketch8.addConstraint(Sketcher.Constraint("Equal", 9, 11))
sketch8.addConstraint(Sketcher.Constraint("Equal", 11, 13))
sketch8.addConstraint(Sketcher.Constraint("Equal", 13, 15))
sketch8.addConstraint(Sketcher.Constraint("Equal", 15, 17))
sketch8.addConstraint(Sketcher.Constraint("Equal", 17, 19))
sketch8.addConstraint(Sketcher.Constraint("Equal", 19, 21))
sketch8.addConstraint(Sketcher.Constraint("Equal", 21, 23))
sketch8.addConstraint(Sketcher.Constraint("Equal", 23, 25))
sketch8.addConstraint(Sketcher.Constraint("Equal", 25, 27))
sketch8.addConstraint(Sketcher.Constraint("Equal", 27, 29))
sketch8.addConstraint(Sketcher.Constraint("Equal", 29, 31))
sketch8.addConstraint(Sketcher.Constraint("Perpendicular", 4, 8))
sketch8.addConstraint(Sketcher.Constraint("Perpendicular", 8, 20))
sketch8.addConstraint(Sketcher.Constraint("Perpendicular", 20, 24))
sketch8.addConstraint(Sketcher.Constraint("Horizontal", 3, 3, 9, 3))
sketch8.addConstraint(Sketcher.Constraint("Horizontal", 7, 3, 13, 3))
sketch8.addConstraint(Sketcher.Constraint("Horizontal", 19, 3, 25, 3))
sketch8.addConstraint(Sketcher.Constraint("Horizontal", 23, 3, 29, 3))
sketch8.addConstraint(Sketcher.Constraint("Horizontal", 3, 1, 8, 2))
sketch8.addConstraint(Sketcher.Constraint("Vertical", 13, 3, 17, 3))
sketch8.addConstraint(Sketcher.Constraint("Vertical", 9, 3, 19, 3))
sketch8.addConstraint(Sketcher.Constraint("Vertical", 15, 3, 21, 3))
sketch8.addConstraint(Sketcher.Constraint("Vertical", 3, 3, 25, 3))
sketch8.addConstraint(Sketcher.Constraint("Vertical", 7, 3, 27, 3))
sketch8.addConstraint(Sketcher.Constraint("Equal", 2, 10))
sketch8.addConstraint(Sketcher.Constraint("Radius", 1, Q("3 mm")))
sketch8.addConstraint(Sketcher.Constraint("DistanceY", 0, 1, 0, 2, Q("14 mm")))
sketch8.addConstraint(Sketcher.Constraint("DistanceX", -1, 1, 1, 3, Q("13 mm")))
sketch8.addConstraint(Sketcher.Constraint("DistanceY", -1, 1, 1, 3, Q("27 mm")))
sketch8.addConstraint(Sketcher.Constraint("DistanceX", -1, 1, 11, 3, Q("147 mm")))
sketch8.addConstraint(Sketcher.Constraint("DistanceY", -1, 1, 17, 3, Q("83 mm")))
sketch8.addConstraint(Sketcher.Constraint("DistanceX", 2, 1, 2, 2, Q("15.757359 mm")))
sketch8.setExpression("Constraints[73]", "Params.sketch8_radius")
sketch8.setExpression("Constraints[74]", "Params.sketch8_height")
pocket5 = body.newObject("PartDesign::Pocket", "Pocket004")
pocket5.Profile = sketch8
pocket5.setExpression("Length", "Params.pocket5_length")
pocket5.Reversed = True

# Sketch on XZ plane
sketch9 = body.newObject("Sketcher::SketchObject", "Sketch008")
sketch9.AttachmentSupport = (doc.getObject("XZ_Plane"), [""])
sketch9.MapMode = "FlatFace"
sketch9.AttachmentOffset = App.Placement(V(0, 0, -3), App.Rotation())
sketch9.addGeometry(Part.Circle(V(80, 55, 0), V(0, 0, 1), 25), False)
sketch9.addConstraint(Sketcher.Constraint("Diameter", 0, Q("50 mm")))
sketch9.addConstraint(Sketcher.Constraint("DistanceX", -1, 1, 0, 3, Q("80 mm")))
sketch9.addConstraint(Sketcher.Constraint("DistanceY", -1, 1, 0, 3, Q("55 mm")))
sketch9.setExpression("Constraints[0]", "Params.sketch9_diameter")
pocket6 = body.newObject("PartDesign::Pocket", "Pocket005")
pocket6.Profile = sketch9
pocket6.setExpression("Length", "Params.pocket6_length")
pocket6.Reversed = True

doc.recompute()
